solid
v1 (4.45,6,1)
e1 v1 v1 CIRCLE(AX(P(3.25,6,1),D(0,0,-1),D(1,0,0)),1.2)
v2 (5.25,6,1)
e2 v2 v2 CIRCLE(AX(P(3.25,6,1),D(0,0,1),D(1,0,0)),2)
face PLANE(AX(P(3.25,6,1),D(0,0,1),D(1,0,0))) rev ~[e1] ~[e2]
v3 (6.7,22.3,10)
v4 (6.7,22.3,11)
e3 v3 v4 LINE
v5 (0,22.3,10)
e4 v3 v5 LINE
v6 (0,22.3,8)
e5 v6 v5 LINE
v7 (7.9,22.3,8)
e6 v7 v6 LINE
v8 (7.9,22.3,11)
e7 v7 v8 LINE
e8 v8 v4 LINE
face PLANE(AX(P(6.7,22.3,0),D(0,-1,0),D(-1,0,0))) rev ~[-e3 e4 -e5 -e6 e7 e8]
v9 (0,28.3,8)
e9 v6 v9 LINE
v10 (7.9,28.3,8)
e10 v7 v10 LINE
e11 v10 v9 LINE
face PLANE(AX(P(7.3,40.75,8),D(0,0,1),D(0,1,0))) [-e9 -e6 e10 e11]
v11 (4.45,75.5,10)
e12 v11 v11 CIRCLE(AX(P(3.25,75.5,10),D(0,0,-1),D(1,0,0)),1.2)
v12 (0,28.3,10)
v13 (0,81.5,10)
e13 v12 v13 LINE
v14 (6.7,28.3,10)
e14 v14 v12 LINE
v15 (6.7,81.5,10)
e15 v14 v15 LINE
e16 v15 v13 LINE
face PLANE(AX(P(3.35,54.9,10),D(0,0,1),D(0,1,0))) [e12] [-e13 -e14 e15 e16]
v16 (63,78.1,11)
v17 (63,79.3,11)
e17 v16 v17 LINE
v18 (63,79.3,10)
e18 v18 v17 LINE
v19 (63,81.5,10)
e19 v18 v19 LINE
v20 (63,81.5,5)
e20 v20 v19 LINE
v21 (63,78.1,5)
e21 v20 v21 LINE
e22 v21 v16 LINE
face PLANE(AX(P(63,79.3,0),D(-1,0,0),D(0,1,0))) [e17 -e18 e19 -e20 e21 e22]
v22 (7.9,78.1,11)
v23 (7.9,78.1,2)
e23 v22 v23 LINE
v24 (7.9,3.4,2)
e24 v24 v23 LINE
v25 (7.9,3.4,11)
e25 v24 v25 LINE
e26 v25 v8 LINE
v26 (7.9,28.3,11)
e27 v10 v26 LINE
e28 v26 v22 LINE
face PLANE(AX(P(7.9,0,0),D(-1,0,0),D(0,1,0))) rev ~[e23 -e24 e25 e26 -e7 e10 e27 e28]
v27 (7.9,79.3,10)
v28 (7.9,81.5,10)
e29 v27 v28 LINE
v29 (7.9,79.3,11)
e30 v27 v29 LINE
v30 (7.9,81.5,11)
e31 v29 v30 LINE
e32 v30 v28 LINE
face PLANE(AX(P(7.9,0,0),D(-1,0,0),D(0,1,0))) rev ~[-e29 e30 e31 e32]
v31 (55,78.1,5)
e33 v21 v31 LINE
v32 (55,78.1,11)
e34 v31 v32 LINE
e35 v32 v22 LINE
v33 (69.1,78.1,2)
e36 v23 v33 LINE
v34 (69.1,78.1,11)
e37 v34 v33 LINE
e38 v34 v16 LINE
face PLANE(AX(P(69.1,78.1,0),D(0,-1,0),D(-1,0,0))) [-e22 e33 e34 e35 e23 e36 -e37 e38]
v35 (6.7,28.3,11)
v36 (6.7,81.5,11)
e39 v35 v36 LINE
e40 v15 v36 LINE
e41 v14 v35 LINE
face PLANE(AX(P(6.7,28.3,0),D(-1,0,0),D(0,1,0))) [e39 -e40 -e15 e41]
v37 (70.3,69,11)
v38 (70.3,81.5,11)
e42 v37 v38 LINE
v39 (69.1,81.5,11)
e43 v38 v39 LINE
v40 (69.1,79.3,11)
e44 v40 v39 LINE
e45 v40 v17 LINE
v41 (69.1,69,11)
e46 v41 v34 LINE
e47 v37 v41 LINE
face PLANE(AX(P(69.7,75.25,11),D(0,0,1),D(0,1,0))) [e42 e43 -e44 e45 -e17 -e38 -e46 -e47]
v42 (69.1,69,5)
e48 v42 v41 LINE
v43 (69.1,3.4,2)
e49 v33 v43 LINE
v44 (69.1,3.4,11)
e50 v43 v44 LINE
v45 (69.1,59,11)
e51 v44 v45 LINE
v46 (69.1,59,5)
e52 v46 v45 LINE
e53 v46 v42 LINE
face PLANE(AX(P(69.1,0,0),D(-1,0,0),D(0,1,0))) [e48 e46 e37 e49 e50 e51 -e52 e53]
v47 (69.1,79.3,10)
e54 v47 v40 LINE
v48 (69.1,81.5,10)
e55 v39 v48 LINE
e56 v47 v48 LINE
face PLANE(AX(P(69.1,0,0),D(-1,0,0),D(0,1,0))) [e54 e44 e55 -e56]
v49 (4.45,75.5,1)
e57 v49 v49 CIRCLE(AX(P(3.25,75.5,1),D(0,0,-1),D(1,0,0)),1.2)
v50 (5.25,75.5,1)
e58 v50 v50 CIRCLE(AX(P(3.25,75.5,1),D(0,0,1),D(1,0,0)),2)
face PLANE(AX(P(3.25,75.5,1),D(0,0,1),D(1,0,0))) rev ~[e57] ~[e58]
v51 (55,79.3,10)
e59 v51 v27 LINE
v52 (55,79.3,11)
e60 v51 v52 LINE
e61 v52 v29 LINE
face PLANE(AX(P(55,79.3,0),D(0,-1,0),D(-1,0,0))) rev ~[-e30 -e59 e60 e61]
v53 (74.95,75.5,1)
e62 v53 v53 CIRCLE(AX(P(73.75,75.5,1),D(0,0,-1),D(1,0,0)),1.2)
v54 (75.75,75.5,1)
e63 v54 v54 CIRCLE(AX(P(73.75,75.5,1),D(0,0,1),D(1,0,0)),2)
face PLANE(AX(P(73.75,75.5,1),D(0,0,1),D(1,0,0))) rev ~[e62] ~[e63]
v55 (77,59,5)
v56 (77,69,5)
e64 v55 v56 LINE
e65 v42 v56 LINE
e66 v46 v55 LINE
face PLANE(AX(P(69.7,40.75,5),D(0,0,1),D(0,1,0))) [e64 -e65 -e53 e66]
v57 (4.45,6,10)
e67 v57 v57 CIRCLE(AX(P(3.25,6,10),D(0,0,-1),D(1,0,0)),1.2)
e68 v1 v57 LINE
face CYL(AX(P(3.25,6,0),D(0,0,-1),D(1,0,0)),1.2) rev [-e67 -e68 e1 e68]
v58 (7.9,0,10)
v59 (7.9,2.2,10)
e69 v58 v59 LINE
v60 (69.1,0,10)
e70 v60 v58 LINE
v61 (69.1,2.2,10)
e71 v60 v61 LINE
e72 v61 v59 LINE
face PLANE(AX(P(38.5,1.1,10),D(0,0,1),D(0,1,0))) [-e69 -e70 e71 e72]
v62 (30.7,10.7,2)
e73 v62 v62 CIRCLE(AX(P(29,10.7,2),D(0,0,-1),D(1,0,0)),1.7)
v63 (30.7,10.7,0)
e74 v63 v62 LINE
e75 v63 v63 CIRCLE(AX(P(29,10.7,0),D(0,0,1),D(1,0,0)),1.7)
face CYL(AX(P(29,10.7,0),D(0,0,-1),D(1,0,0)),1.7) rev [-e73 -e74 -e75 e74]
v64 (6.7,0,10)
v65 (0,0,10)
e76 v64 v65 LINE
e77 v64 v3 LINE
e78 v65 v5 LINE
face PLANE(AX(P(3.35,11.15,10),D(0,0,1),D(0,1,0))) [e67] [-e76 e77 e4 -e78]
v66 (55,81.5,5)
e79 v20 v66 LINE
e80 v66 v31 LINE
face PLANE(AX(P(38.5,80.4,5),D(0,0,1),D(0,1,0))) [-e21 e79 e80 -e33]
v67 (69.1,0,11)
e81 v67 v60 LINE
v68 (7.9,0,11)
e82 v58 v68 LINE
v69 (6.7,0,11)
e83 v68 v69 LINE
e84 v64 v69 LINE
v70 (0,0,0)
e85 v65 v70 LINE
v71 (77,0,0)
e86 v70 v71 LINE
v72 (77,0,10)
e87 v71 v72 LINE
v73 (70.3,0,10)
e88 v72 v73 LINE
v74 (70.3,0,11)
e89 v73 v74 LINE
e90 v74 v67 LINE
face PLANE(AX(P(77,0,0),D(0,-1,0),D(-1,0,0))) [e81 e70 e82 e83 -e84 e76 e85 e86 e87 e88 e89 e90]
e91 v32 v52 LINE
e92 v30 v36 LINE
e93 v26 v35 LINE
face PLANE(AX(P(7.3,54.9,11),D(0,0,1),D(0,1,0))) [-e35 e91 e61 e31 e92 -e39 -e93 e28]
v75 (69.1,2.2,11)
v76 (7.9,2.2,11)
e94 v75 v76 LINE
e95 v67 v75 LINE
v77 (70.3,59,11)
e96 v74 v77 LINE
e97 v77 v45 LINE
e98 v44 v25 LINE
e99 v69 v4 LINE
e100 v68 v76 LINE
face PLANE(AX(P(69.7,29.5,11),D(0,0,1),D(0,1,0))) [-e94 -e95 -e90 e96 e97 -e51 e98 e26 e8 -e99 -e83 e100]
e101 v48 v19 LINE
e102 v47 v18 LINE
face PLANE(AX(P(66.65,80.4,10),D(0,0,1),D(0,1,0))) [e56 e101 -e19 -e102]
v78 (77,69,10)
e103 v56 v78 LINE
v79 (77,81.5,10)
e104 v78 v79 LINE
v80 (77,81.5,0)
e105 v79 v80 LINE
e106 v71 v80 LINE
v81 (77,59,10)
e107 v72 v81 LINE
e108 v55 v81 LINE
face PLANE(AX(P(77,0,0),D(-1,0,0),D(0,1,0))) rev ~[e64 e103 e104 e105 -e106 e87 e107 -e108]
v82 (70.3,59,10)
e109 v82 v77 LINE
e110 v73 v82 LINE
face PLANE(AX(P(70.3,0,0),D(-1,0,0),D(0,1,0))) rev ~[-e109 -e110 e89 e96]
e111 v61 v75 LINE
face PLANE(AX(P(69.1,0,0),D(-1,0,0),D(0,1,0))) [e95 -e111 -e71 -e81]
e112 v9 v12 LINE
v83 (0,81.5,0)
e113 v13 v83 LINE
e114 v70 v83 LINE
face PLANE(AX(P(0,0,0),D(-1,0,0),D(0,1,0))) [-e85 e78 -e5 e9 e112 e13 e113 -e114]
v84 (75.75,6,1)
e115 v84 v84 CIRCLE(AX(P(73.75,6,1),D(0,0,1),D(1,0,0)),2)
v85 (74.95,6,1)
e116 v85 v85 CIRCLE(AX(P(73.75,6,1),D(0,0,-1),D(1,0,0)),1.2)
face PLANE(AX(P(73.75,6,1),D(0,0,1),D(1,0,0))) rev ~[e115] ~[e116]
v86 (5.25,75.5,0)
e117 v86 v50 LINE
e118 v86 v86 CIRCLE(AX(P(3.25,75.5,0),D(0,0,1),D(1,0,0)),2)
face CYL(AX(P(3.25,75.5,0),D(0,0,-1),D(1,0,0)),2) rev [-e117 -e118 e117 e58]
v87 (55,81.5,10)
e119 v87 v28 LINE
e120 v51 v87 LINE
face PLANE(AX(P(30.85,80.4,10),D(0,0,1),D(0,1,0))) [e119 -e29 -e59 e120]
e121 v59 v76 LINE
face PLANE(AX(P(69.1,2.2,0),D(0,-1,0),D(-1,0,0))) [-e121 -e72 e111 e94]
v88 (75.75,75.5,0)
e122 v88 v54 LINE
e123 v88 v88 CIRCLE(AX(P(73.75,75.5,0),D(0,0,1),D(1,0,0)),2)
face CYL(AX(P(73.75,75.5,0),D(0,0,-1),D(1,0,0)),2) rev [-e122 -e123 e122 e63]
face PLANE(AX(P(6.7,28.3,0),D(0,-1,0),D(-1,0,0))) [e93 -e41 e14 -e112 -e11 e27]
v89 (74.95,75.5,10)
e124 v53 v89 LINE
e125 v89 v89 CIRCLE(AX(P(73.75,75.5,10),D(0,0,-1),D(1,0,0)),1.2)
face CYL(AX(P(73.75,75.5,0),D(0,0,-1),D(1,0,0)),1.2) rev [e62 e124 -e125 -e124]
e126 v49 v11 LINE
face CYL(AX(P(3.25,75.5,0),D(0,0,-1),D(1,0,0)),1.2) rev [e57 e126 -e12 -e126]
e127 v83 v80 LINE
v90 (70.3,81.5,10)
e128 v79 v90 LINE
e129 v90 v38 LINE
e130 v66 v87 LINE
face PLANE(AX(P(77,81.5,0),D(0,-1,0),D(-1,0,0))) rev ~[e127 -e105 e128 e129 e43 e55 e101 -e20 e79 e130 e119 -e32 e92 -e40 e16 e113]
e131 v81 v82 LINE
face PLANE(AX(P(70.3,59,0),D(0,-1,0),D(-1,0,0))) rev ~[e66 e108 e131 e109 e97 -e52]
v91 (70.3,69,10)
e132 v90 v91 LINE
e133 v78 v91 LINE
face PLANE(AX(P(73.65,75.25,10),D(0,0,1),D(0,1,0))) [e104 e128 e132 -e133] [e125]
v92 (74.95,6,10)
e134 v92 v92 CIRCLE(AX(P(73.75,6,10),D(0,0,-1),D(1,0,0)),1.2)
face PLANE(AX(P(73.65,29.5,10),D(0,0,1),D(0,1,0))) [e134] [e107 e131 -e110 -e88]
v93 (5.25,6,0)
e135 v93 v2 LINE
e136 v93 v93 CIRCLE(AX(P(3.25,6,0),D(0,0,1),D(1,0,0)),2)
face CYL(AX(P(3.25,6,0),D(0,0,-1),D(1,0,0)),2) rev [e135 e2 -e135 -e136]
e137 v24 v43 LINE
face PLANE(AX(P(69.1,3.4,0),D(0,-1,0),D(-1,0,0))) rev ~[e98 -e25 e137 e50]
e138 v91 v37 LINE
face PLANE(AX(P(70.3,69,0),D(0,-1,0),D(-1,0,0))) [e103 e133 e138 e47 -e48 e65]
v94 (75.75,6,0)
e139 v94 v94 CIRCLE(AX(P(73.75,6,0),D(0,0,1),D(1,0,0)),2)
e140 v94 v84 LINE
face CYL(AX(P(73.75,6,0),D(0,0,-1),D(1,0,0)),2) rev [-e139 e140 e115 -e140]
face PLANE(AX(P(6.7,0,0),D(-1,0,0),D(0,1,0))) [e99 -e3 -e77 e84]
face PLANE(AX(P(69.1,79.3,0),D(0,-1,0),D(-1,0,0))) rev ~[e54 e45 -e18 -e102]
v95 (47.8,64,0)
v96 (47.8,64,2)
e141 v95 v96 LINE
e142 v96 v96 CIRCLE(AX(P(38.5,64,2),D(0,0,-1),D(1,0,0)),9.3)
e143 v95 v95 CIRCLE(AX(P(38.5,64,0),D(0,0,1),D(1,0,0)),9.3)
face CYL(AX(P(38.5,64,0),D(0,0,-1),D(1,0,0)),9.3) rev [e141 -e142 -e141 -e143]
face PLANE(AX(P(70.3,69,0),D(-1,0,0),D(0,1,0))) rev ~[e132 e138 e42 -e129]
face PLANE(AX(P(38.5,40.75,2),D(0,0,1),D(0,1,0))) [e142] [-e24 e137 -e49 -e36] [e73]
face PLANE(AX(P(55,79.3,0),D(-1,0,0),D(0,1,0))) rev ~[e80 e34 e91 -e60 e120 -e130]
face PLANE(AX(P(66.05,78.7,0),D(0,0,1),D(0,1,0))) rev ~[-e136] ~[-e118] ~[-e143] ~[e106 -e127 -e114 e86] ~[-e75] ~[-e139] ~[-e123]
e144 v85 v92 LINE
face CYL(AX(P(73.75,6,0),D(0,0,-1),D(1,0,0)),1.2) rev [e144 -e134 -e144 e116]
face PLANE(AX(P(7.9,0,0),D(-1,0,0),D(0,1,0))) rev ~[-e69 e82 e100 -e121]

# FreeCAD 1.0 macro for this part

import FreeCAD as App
import Part
import Sketcher
Q = App.Units.Quantity


def add_polygon(sketch, points):
    """Adds a closed chain of lines whose ends are joined by coincident constraints."""
    first, n = sketch.GeometryCount, len(points)
    for a, b in zip(points, points[1:] + points[:1]):
        sketch.addGeometry(Part.LineSegment(App.Vector(*a, 0), App.Vector(*b, 0)), False)
    for i in range(n):
        sketch.addConstraint(Sketcher.Constraint("Coincident", first + i, 2, first + (i + 1) % n, 1))

doc = App.newDocument("Part")
body = doc.addObject("PartDesign::Body", "Body")

# Sketch on XY plane
sketch1 = doc.addObject("Sketcher::SketchObject", "Sketch")
body.addObject(sketch1)
sketch1.AttachmentSupport = (doc.XY_Plane, [""])
sketch1.MapMode = "FlatFace"
add_polygon(sketch1, [(0, 0), (77, 0), (77, 81.5), (0, 81.5)])  # lines 0-3
sketch1.addConstraint([
    Sketcher.Constraint("Horizontal", 0),
    Sketcher.Constraint("Vertical", 1),
    Sketcher.Constraint("Horizontal", 2),
    Sketcher.Constraint("Vertical", 3),
    Sketcher.Constraint("Coincident", 3, 2, -1, 1),
    Sketcher.Constraint("DistanceX", 0, 1, 0, 2, Q("77 mm")),
    Sketcher.Constraint("DistanceY", 1, 1, 1, 2, Q("81.5 mm")),
])
pad1 = doc.addObject("PartDesign::Pad", "Pad")
body.addObject(pad1)
pad1.Profile = sketch1
pad1.Length = 2

# Sketch on XY plane
sketch2 = doc.addObject("Sketcher::SketchObject", "Sketch001")
body.addObject(sketch2)
sketch2.AttachmentSupport = (doc.XY_Plane, [""])
sketch2.MapMode = "FlatFace"
add_polygon(sketch2, [(0, 0), (6.7, 0), (6.7, 81.5), (0, 81.5)])  # lines 0-3
sketch2.addConstraint([
    Sketcher.Constraint("Horizontal", 0),
    Sketcher.Constraint("Vertical", 1),
    Sketcher.Constraint("Horizontal", 2),
    Sketcher.Constraint("Vertical", 3),
    Sketcher.Constraint("Coincident", 3, 2, -1, 1),
    Sketcher.Constraint("DistanceX", 0, 1, 0, 2, Q("6.7 mm")),
    Sketcher.Constraint("DistanceY", 1, 1, 1, 2, Q("81.5 mm")),
])
pad2 = doc.addObject("PartDesign::Pad", "Pad001")
body.addObject(pad2)
pad2.Profile = sketch2
pad2.Length = 8

# Sketch on XY plane
sketch3 = doc.addObject("Sketcher::SketchObject", "Sketch002")
body.addObject(sketch3)
sketch3.AttachmentSupport = (doc.XY_Plane, [""])
sketch3.MapMode = "FlatFace"
add_polygon(sketch3, [(0, 0), (6.7, 0), (6.7, 22.3), (0, 22.3)])  # lines 0-3
sketch3.addConstraint([
    Sketcher.Constraint("Horizontal", 0),
    Sketcher.Constraint("Vertical", 1),
    Sketcher.Constraint("Horizontal", 2),
    Sketcher.Constraint("Vertical", 3),
    Sketcher.Constraint("Coincident", 3, 2, -1, 1),
    Sketcher.Constraint("DistanceX", 0, 1, 0, 2, Q("6.7 mm")),
    Sketcher.Constraint("DistanceY", 1, 1, 1, 2, Q("22.3 mm")),
])
pad3 = doc.addObject("PartDesign::Pad", "Pad002")
body.addObject(pad3)
pad3.Profile = sketch3
pad3.Length = 10

# Sketch on XY plane
sketch4 = doc.addObject("Sketcher::SketchObject", "Sketch003")
body.addObject(sketch4)
sketch4.AttachmentSupport = (doc.XY_Plane, [""])
sketch4.MapMode = "FlatFace"
add_polygon(sketch4, [(0, 28.3), (6.7, 28.3), (6.7, 81.5), (0, 81.5)])  # lines 0-3
sketch4.addConstraint([
    Sketcher.Constraint("Horizontal", 0),
    Sketcher.Constraint("Vertical", 1),
    Sketcher.Constraint("Horizontal", 2),
    Sketcher.Constraint("Vertical", 3),
    Sketcher.Constraint("PointOnObject", 2, 2, -2),
    Sketcher.Constraint("DistanceX", 0, 1, 0, 2, Q("6.7 mm")),
    Sketcher.Constraint("DistanceY", 1, 1, 1, 2, Q("53.2 mm")),
    Sketcher.Constraint("DistanceY", -1, 1, 0, 2, Q("28.3 mm")),
])
pad4 = doc.addObject("PartDesign::Pad", "Pad003")
body.addObject(pad4)
pad4.Profile = sketch4
pad4.Length = 10

# Sketch on XY plane
sketch5 = doc.addObject("Sketcher::SketchObject", "Sketch004")
body.addObject(sketch5)
sketch5.AttachmentSupport = (doc.XY_Plane, [""])
sketch5.MapMode = "FlatFace"
add_polygon(sketch5, [(6.7, 0), (7.9, 0), (7.9, 81.5), (6.7, 81.5)])  # lines 0-3
sketch5.addConstraint([
    Sketcher.Constraint("Horizontal", 0),
    Sketcher.Constraint("Vertical", 1),
    Sketcher.Constraint("Horizontal", 2),
    Sketcher.Constraint("Vertical", 3),
    Sketcher.Constraint("PointOnObject", 0, 2, -1),
    Sketcher.Constraint("DistanceX", 0, 1, 0, 2, Q("1.2 mm")),
    Sketcher.Constraint("DistanceY", 1, 1, 1, 2, Q("81.5 mm")),
    Sketcher.Constraint("DistanceX", -1, 1, 0, 2, Q("7.9 mm")),
])
pad5 = doc.addObject("PartDesign::Pad", "Pad004")
body.addObject(pad5)
pad5.Profile = sketch5
pad5.Length = 8

# Sketch on XY plane
sketch6 = doc.addObject("Sketcher::SketchObject", "Sketch005")
body.addObject(sketch6)
sketch6.AttachmentSupport = (doc.XY_Plane, [""])
sketch6.MapMode = "FlatFace"
add_polygon(sketch6, [(6.7, 0), (7.9, 0), (7.9, 22.3), (6.7, 22.3)])  # lines 0-3
sketch6.addConstraint([
    Sketcher.Constraint("Horizontal", 0),
    Sketcher.Constraint("Vertical", 1),
    Sketcher.Constraint("Horizontal", 2),
    Sketcher.Constraint("Vertical", 3),
    Sketcher.Constraint("PointOnObject", 0, 2, -1),
    Sketcher.Constraint("DistanceX", 0, 1, 0, 2, Q("1.2 mm")),
    Sketcher.Constraint("DistanceY", 1, 1, 1, 2, Q("22.3 mm")),
    Sketcher.Constraint("DistanceX", -1, 1, 0, 2, Q("7.9 mm")),
])
pad6 = doc.addObject("PartDesign::Pad", "Pad005")
body.addObject(pad6)
pad6.Profile = sketch6
pad6.Length = 11

# Sketch on XY plane
sketch7 = doc.addObject("Sketcher::SketchObject", "Sketch006")
body.addObject(sketch7)
sketch7.AttachmentSupport = (doc.XY_Plane, [""])
sketch7.MapMode = "FlatFace"
add_polygon(sketch7, [(6.7, 28.3), (7.9, 28.3), (7.9, 81.5), (6.7, 81.5)])  # lines 0-3
sketch7.addConstraint([
    Sketcher.Constraint("Horizontal", 0),
    Sketcher.Constraint("Vertical", 1),
    Sketcher.Constraint("Horizontal", 2),
    Sketcher.Constraint("Vertical", 3),
    Sketcher.Constraint("DistanceX", 0, 1, 0, 2, Q("1.2 mm")),
    Sketcher.Constraint("DistanceY", 1, 1, 1, 2, Q("53.2 mm")),
    Sketcher.Constraint("DistanceX", -1, 1, 0, 2, Q("7.9 mm")),
    Sketcher.Constraint("DistanceY", -1, 1, 0, 2, Q("28.3 mm")),
])
pad7 = doc.addObject("PartDesign::Pad", "Pad006")
body.addObject(pad7)
pad7.Profile = sketch7
pad7.Length = 11

# Sketch on XY plane
sketch8 = doc.addObject("Sketcher::SketchObject", "Sketch007")
body.addObject(sketch8)
sketch8.AttachmentSupport = (doc.XY_Plane, [""])
sketch8.MapMode = "FlatFace"
add_polygon(sketch8, [(70.3, 0), (77, 0), (77, 81.5), (70.3, 81.5)])  # lines 0-3
sketch8.addConstraint([
    Sketcher.Constraint("Horizontal", 0),
    Sketcher.Constraint("Vertical", 1),
    Sketcher.Constraint("Horizontal", 2),
    Sketcher.Constraint("Vertical", 3),
    Sketcher.Constraint("PointOnObject", 0, 2, -1),
    Sketcher.Constraint("DistanceX", 0, 1, 0, 2, Q("6.7 mm")),
    Sketcher.Constraint("DistanceY", 1, 1, 1, 2, Q("81.5 mm")),
    Sketcher.Constraint("DistanceX", -1, 1, 0, 2, Q("77 mm")),
])
pad8 = doc.addObject("PartDesign::Pad", "Pad007")
body.addObject(pad8)
pad8.Profile = sketch8
pad8.Length = 5

# Sketch on XY plane
sketch9 = doc.addObject("Sketcher::SketchObject", "Sketch008")
body.addObject(sketch9)
sketch9.AttachmentSupport = (doc.XY_Plane, [""])
sketch9.MapMode = "FlatFace"
add_polygon(sketch9, [(70.3, 0), (77, 0), (77, 59), (70.3, 59)])  # lines 0-3
sketch9.addConstraint([
    Sketcher.Constraint("Horizontal", 0),
    Sketcher.Constraint("Vertical", 1),
    Sketcher.Constraint("Horizontal", 2),
    Sketcher.Constraint("Vertical", 3),
    Sketcher.Constraint("PointOnObject", 0, 2, -1),
    Sketcher.Constraint("DistanceY", 1, 1, 1, 2, Q("59 mm")),
    Sketcher.Constraint("DistanceX", 0, 1, 0, 2, Q("6.7 mm")),
    Sketcher.Constraint("DistanceX", -1, 1, 0, 2, Q("77 mm")),
])
pad9 = doc.addObject("PartDesign::Pad", "Pad008")
body.addObject(pad9)
pad9.Profile = sketch9
pad9.Length = 10

# Sketch on XY plane
sketch10 = doc.addObject("Sketcher::SketchObject", "Sketch009")
body.addObject(sketch10)
sketch10.AttachmentSupport = (doc.XY_Plane, [""])
sketch10.MapMode = "FlatFace"
add_polygon(sketch10, [(70.3, 69), (77, 69), (77, 81.5), (70.3, 81.5)])  # lines 0-3
sketch10.addConstraint([
    Sketcher.Constraint("Horizontal", 0),
    Sketcher.Constraint("Vertical", 1),
    Sketcher.Constraint("Horizontal", 2),
    Sketcher.Constraint("Vertical", 3),
    Sketcher.Constraint("DistanceX", 0, 1, 0, 2, Q("6.7 mm")),
    Sketcher.Constraint("DistanceY", 1, 1, 1, 2, Q("12.5 mm")),
    Sketcher.Constraint("DistanceX", -1, 1, 0, 2, Q("77 mm")),
    Sketcher.Constraint("DistanceY", -1, 1, 0, 2, Q("69 mm")),
])
pad10 = doc.addObject("PartDesign::Pad", "Pad009")
body.addObject(pad10)
pad10.Profile = sketch10
pad10.Length = 10

# Sketch on XY plane
sketch11 = doc.addObject("Sketcher::SketchObject", "Sketch010")
body.addObject(sketch11)
sketch11.AttachmentSupport = (doc.XY_Plane, [""])
sketch11.MapMode = "FlatFace"
add_polygon(sketch11, [(69.1, 0), (70.3, 0), (70.3, 81.5), (69.1, 81.5)])  # lines 0-3
sketch11.addConstraint([
    Sketcher.Constraint("Horizontal", 0),
    Sketcher.Constraint("Vertical", 1),
    Sketcher.Constraint("Horizontal", 2),
    Sketcher.Constraint("Vertical", 3),
    Sketcher.Constraint("PointOnObject", 0, 2, -1),
    Sketcher.Constraint("DistanceX", 0, 1, 0, 2, Q("1.2 mm")),
    Sketcher.Constraint("DistanceY", 1, 1, 1, 2, Q("81.5 mm")),
    Sketcher.Constraint("DistanceX", -1, 1, 0, 2, Q("70.3 mm")),
])
pad11 = doc.addObject("PartDesign::Pad", "Pad010")
body.addObject(pad11)
pad11.Profile = sketch11
pad11.Length = 5

# Sketch on XY plane
sketch12 = doc.addObject("Sketcher::SketchObject", "Sketch011")
body.addObject(sketch12)
sketch12.AttachmentSupport = (doc.XY_Plane, [""])
sketch12.MapMode = "FlatFace"
add_polygon(sketch12, [(69.1, 0), (70.3, 0), (70.3, 59), (69.1, 59)])  # lines 0-3
sketch12.addConstraint([
    Sketcher.Constraint("Horizontal", 0),
    Sketcher.Constraint("Vertical", 1),
    Sketcher.Constraint("Horizontal", 2),
    Sketcher.Constraint("Vertical", 3),
    Sketcher.Constraint("PointOnObject", 0, 2, -1),
    Sketcher.Constraint("DistanceY", 1, 1, 1, 2, Q("59 mm")),
    Sketcher.Constraint("DistanceX", 0, 1, 0, 2, Q("1.2 mm")),
    Sketcher.Constraint("DistanceX", -1, 1, 0, 2, Q("70.3 mm")),
])
pad12 = doc.addObject("PartDesign::Pad", "Pad011")
body.addObject(pad12)
pad12.Profile = sketch12
pad12.Length = 11

# Sketch on XY plane
sketch13 = doc.addObject("Sketcher::SketchObject", "Sketch012")
body.addObject(sketch13)
sketch13.AttachmentSupport = (doc.XY_Plane, [""])
sketch13.MapMode = "FlatFace"
add_polygon(sketch13, [(69.1, 69), (70.3, 69), (70.3, 81.5), (69.1, 81.5)])  # lines 0-3
sketch13.addConstraint([
    Sketcher.Constraint("Horizontal", 0),
    Sketcher.Constraint("Vertical", 1),
    Sketcher.Constraint("Horizontal", 2),
    Sketcher.Constraint("Vertical", 3),
    Sketcher.Constraint("DistanceX", 0, 1, 0, 2, Q("1.2 mm")),
    Sketcher.Constraint("DistanceY", 1, 1, 1, 2, Q("12.5 mm")),
    Sketcher.Constraint("DistanceY", -1, 1, 0, 2, Q("69 mm")),
    Sketcher.Constraint("DistanceX", -1, 1, 0, 2, Q("70.3 mm")),
])
pad13 = doc.addObject("PartDesign::Pad", "Pad012")
body.addObject(pad13)
pad13.Profile = sketch13
pad13.Length = 11

# Sketch on XY plane
sketch14 = doc.addObject("Sketcher::SketchObject", "Sketch013")
body.addObject(sketch14)
sketch14.AttachmentSupport = (doc.XY_Plane, [""])
sketch14.MapMode = "FlatFace"
add_polygon(sketch14, [(6.7, 0), (70.3, 0), (70.3, 2.2), (6.7, 2.2)])  # lines 0-3
sketch14.addConstraint([
    Sketcher.Constraint("Horizontal", 0),
    Sketcher.Constraint("Vertical", 1),
    Sketcher.Constraint("Horizontal", 2),
    Sketcher.Constraint("Vertical", 3),
    Sketcher.Constraint("PointOnObject", 0, 2, -1),
    Sketcher.Constraint("DistanceX", 0, 1, 0, 2, Q("63.6 mm")),
    Sketcher.Constraint("DistanceY", 1, 1, 1, 2, Q("2.2 mm")),
    Sketcher.Constraint("DistanceX", -1, 1, 0, 2, Q("70.3 mm")),
])
pad14 = doc.addObject("PartDesign::Pad", "Pad013")
body.addObject(pad14)
pad14.Profile = sketch14
pad14.Length = 10

# Sketch on XY plane
sketch15 = doc.addObject("Sketcher::SketchObject", "Sketch014")
body.addObject(sketch15)
sketch15.AttachmentSupport = (doc.XY_Plane, [""])
sketch15.MapMode = "FlatFace"
add_polygon(sketch15, [(7.9, 2.2), (69.1, 2.2), (69.1, 3.4), (7.9, 3.4)])  # lines 0-3
sketch15.addConstraint([
    Sketcher.Constraint("Horizontal", 0),
    Sketcher.Constraint("Vertical", 1),
    Sketcher.Constraint("Horizontal", 2),
    Sketcher.Constraint("Vertical", 3),
    Sketcher.Constraint("DistanceX", 0, 1, 0, 2, Q("61.2 mm")),
    Sketcher.Constraint("DistanceY", 1, 1, 1, 2, Q("1.2 mm")),
    Sketcher.Constraint("DistanceX", -1, 1, 0, 2, Q("69.1 mm")),
    Sketcher.Constraint("DistanceY", -1, 1, 0, 2, Q("2.2 mm")),
])
pad15 = doc.addObject("PartDesign::Pad", "Pad014")
body.addObject(pad15)
pad15.Profile = sketch15
pad15.Length = 11

# Sketch on XY plane
sketch16 = doc.addObject("Sketcher::SketchObject", "Sketch015")
body.addObject(sketch16)
sketch16.AttachmentSupport = (doc.XY_Plane, [""])
sketch16.MapMode = "FlatFace"
add_polygon(sketch16, [(6.7, 79.3), (70.3, 79.3), (70.3, 81.5), (6.7, 81.5)])  # lines 0-3
sketch16.addConstraint([
    Sketcher.Constraint("Horizontal", 0),
    Sketcher.Constraint("Vertical", 1),
    Sketcher.Constraint("Horizontal", 2),
    Sketcher.Constraint("Vertical", 3),
    Sketcher.Constraint("DistanceX", 0, 1, 0, 2, Q("63.6 mm")),
    Sketcher.Constraint("DistanceY", 1, 1, 1, 2, Q("2.2 mm")),
    Sketcher.Constraint("DistanceX", -1, 1, 0, 2, Q("70.3 mm")),
    Sketcher.Constraint("DistanceY", -1, 1, 0, 2, Q("79.3 mm")),
])
pad16 = doc.addObject("PartDesign::Pad", "Pad015")
body.addObject(pad16)
pad16.Profile = sketch16
pad16.Length = 5

# Sketch on XY plane
sketch17 = doc.addObject("Sketcher::SketchObject", "Sketch016")
body.addObject(sketch17)
sketch17.AttachmentSupport = (doc.XY_Plane, [""])
sketch17.MapMode = "FlatFace"
add_polygon(sketch17, [(6.7, 79.3), (55, 79.3), (55, 81.5), (6.7, 81.5)])  # lines 0-3
sketch17.addConstraint([
    Sketcher.Constraint("Horizontal", 0),
    Sketcher.Constraint("Vertical", 1),
    Sketcher.Constraint("Horizontal", 2),
    Sketcher.Constraint("Vertical", 3),
    Sketcher.Constraint("DistanceX", 0, 1, 0, 2, Q("48.3 mm")),
    Sketcher.Constraint("DistanceY", 1, 1, 1, 2, Q("2.2 mm")),
    Sketcher.Constraint("DistanceX", -1, 1, 0, 2, Q("55 mm")),
    Sketcher.Constraint("DistanceY", -1, 1, 0, 2, Q("79.3 mm")),
])
pad17 = doc.addObject("PartDesign::Pad", "Pad016")
body.addObject(pad17)
pad17.Profile = sketch17
pad17.Length = 10

# Sketch on XY plane
sketch18 = doc.addObject("Sketcher::SketchObject", "Sketch017")
body.addObject(sketch18)
sketch18.AttachmentSupport = (doc.XY_Plane, [""])
sketch18.MapMode = "FlatFace"
add_polygon(sketch18, [(63, 79.3), (70.3, 79.3), (70.3, 81.5), (63, 81.5)])  # lines 0-3
sketch18.addConstraint([
    Sketcher.Constraint("Horizontal", 0),
    Sketcher.Constraint("Vertical", 1),
    Sketcher.Constraint("Horizontal", 2),
    Sketcher.Constraint("Vertical", 3),
    Sketcher.Constraint("DistanceX", 0, 1, 0, 2, Q("7.3 mm")),
    Sketcher.Constraint("DistanceY", 1, 1, 1, 2, Q("2.2 mm")),
    Sketcher.Constraint("DistanceX", -1, 1, 2, 2, Q("63 mm")),
    Sketcher.Constraint("DistanceY", -1, 1, 0, 2, Q("79.3 mm")),
])
pad18 = doc.addObject("PartDesign::Pad", "Pad017")
body.addObject(pad18)
pad18.Profile = sketch18
pad18.Length = 10

# Sketch on XY plane
sketch19 = doc.addObject("Sketcher::SketchObject", "Sketch018")
body.addObject(sketch19)
sketch19.AttachmentSupport = (doc.XY_Plane, [""])
sketch19.MapMode = "FlatFace"
add_polygon(sketch19, [(7.9, 78.1), (69.1, 78.1), (69.1, 79.3), (7.9, 79.3)])  # lines 0-3
sketch19.addConstraint([
    Sketcher.Constraint("Horizontal", 0),
    Sketcher.Constraint("Vertical", 1),
    Sketcher.Constraint("Horizontal", 2),
    Sketcher.Constraint("Vertical", 3),
    Sketcher.Constraint("DistanceX", 0, 1, 0, 2, Q("61.2 mm")),
    Sketcher.Constraint("DistanceY", 1, 1, 1, 2, Q("1.2 mm")),
    Sketcher.Constraint("DistanceX", -1, 1, 0, 2, Q("69.1 mm")),
    Sketcher.Constraint("DistanceY", -1, 1, 0, 2, Q("78.1 mm")),
])
pad19 = doc.addObject("PartDesign::Pad", "Pad018")
body.addObject(pad19)
pad19.Profile = sketch19
pad19.Length = 5

# Sketch on XY plane
sketch20 = doc.addObject("Sketcher::SketchObject", "Sketch019")
body.addObject(sketch20)
sketch20.AttachmentSupport = (doc.XY_Plane, [""])
sketch20.MapMode = "FlatFace"
add_polygon(sketch20, [(7.9, 78.1), (55, 78.1), (55, 79.3), (7.9, 79.3)])  # lines 0-3
sketch20.addConstraint([
    Sketcher.Constraint("Horizontal", 0),
    Sketcher.Constraint("Vertical", 1),
    Sketcher.Constraint("Horizontal", 2),
    Sketcher.Constraint("Vertical", 3),
    Sketcher.Constraint("DistanceX", 0, 1, 0, 2, Q("47.1 mm")),
    Sketcher.Constraint("DistanceY", 1, 1, 1, 2, Q("1.2 mm")),
    Sketcher.Constraint("DistanceX", -1, 1, 0, 2, Q("55 mm")),
    Sketcher.Constraint("DistanceY", -1, 1, 0, 2, Q("78.1 mm")),
])
pad20 = doc.addObject("PartDesign::Pad", "Pad019")
body.addObject(pad20)
pad20.Profile = sketch20
pad20.Length = 11

# Sketch on XY plane
sketch21 = doc.addObject("Sketcher::SketchObject", "Sketch020")
body.addObject(sketch21)
sketch21.AttachmentSupport = (doc.XY_Plane, [""])
sketch21.MapMode = "FlatFace"
add_polygon(sketch21, [(63, 78.1), (69.1, 78.1), (69.1, 79.3), (63, 79.3)])  # lines 0-3
sketch21.addConstraint([
    Sketcher.Constraint("Horizontal", 0),
    Sketcher.Constraint("Vertical", 1),
    Sketcher.Constraint("Horizontal", 2),
    Sketcher.Constraint("Vertical", 3),
    Sketcher.Constraint("DistanceX", 0, 1, 0, 2, Q("6.1 mm")),
    Sketcher.Constraint("DistanceY", 1, 1, 1, 2, Q("1.2 mm")),
    Sketcher.Constraint("DistanceX", -1, 1, 2, 2, Q("63 mm")),
    Sketcher.Constraint("DistanceY", -1, 1, 0, 2, Q("78.1 mm")),
])
pad21 = doc.addObject("PartDesign::Pad", "Pad020")
body.addObject(pad21)
pad21.Profile = sketch21
pad21.Length = 11

# Sketch on XY plane
sketch22 = doc.addObject("Sketcher::SketchObject", "Sketch021")
body.addObject(sketch22)
sketch22.AttachmentSupport = (doc.XY_Plane, [""])
sketch22.MapMode = "FlatFace"
sketch22.addGeometry(Part.Circle(App.Vector(29, 10.7, 0), App.Vector(0, 0, 1), 1.7), False)
sketch22.addConstraint([
    Sketcher.Constraint("Diameter", 0, Q("3.4 mm")),
    Sketcher.Constraint("DistanceX", -1, 1, 0, 3, Q("29 mm")),
    Sketcher.Constraint("DistanceY", -1, 1, 0, 3, Q("10.7 mm")),
])
pocket1 = doc.addObject("PartDesign::Pocket", "Pocket")
body.addObject(pocket1)
pocket1.Profile = sketch22
pocket1.Length = 17
pocket1.Reversed = True

# Sketch on XY plane
sketch23 = doc.addObject("Sketcher::SketchObject", "Sketch022")
body.addObject(sketch23)
sketch23.AttachmentSupport = (doc.XY_Plane, [""])
sketch23.MapMode = "FlatFace"
sketch23.addGeometry(Part.Circle(App.Vector(38.5, 64, 0), App.Vector(0, 0, 1), 9.3), False)
sketch23.addConstraint([
    Sketcher.Constraint("Diameter", 0, Q("18.6 mm")),
    Sketcher.Constraint("DistanceY", -1, 1, 0, 3, Q("64 mm")),
    Sketcher.Constraint("DistanceX", -1, 1, 0, 3, Q("38.5 mm")),
])
pocket2 = doc.addObject("PartDesign::Pocket", "Pocket001")
body.addObject(pocket2)
pocket2.Profile = sketch23
pocket2.Length = 17
pocket2.Reversed = True

# Sketch on XY plane
sketch24 = doc.addObject("Sketcher::SketchObject", "Sketch023")
body.addObject(sketch24)
sketch24.AttachmentSupport = (doc.XY_Plane, [""])
sketch24.MapMode = "FlatFace"
sketch24.addGeometry(Part.Circle(App.Vector(3.25, 6, 0), App.Vector(0, 0, 1), 1.2), False)
sketch24.addConstraint([
    Sketcher.Constraint("Diameter", 0, Q("2.4 mm")),
    Sketcher.Constraint("DistanceY", -1, 1, 0, 3, Q("6 mm")),
    Sketcher.Constraint("DistanceX", -1, 1, 0, 3, Q("3.25 mm")),
])
pocket3 = doc.addObject("PartDesign::Pocket", "Pocket002")
body.addObject(pocket3)
pocket3.Profile = sketch24
pocket3.Length = 17
pocket3.Reversed = True

# Sketch on XY plane
sketch25 = doc.addObject("Sketcher::SketchObject", "Sketch024")
body.addObject(sketch25)
sketch25.AttachmentSupport = (doc.XY_Plane, [""])
sketch25.MapMode = "FlatFace"
sketch25.addGeometry(Part.Circle(App.Vector(3.25, 6, 0), App.Vector(0, 0, 1), 2), False)
sketch25.addConstraint([
    Sketcher.Constraint("Diameter", 0, Q("4 mm")),
    Sketcher.Constraint("DistanceY", -1, 1, 0, 3, Q("6 mm")),
    Sketcher.Constraint("DistanceX", -1, 1, 0, 3, Q("3.25 mm")),
])
pocket4 = doc.addObject("PartDesign::Pocket", "Pocket003")
body.addObject(pocket4)
pocket4.Profile = sketch25
pocket4.Length = 1
pocket4.Reversed = True

# Sketch on XY plane
sketch26 = doc.addObject("Sketcher::SketchObject", "Sketch025")
body.addObject(sketch26)
sketch26.AttachmentSupport = (doc.XY_Plane, [""])
sketch26.MapMode = "FlatFace"
sketch26.addGeometry(Part.Circle(App.Vector(3.25, 75.5, 0), App.Vector(0, 0, 1), 1.2), False)
sketch26.addConstraint([
    Sketcher.Constraint("Diameter", 0, Q("2.4 mm")),
    Sketcher.Constraint("DistanceY", -1, 1, 0, 3, Q("75.5 mm")),
    Sketcher.Constraint("DistanceX", -1, 1, 0, 3, Q("3.25 mm")),
])
pocket5 = doc.addObject("PartDesign::Pocket", "Pocket004")
body.addObject(pocket5)
pocket5.Profile = sketch26
pocket5.Length = 17
pocket5.Reversed = True

# Sketch on XY plane
sketch27 = doc.addObject("Sketcher::SketchObject", "Sketch026")
body.addObject(sketch27)
sketch27.AttachmentSupport = (doc.XY_Plane, [""])
sketch27.MapMode = "FlatFace"
sketch27.addGeometry(Part.Circle(App.Vector(3.25, 75.5, 0), App.Vector(0, 0, 1), 2), False)
sketch27.addConstraint([
    Sketcher.Constraint("Diameter", 0, Q("4 mm")),
    Sketcher.Constraint("DistanceY", -1, 1, 0, 3, Q("75.5 mm")),
    Sketcher.Constraint("DistanceX", -1, 1, 0, 3, Q("3.25 mm")),
])
pocket6 = doc.addObject("PartDesign::Pocket", "Pocket005")
body.addObject(pocket6)
pocket6.Profile = sketch27
pocket6.Length = 1
pocket6.Reversed = True

# Sketch on XY plane
sketch28 = doc.addObject("Sketcher::SketchObject", "Sketch027")
body.addObject(sketch28)
sketch28.AttachmentSupport = (doc.XY_Plane, [""])
sketch28.MapMode = "FlatFace"
sketch28.addGeometry(Part.Circle(App.Vector(73.75, 6, 0), App.Vector(0, 0, 1), 1.2), False)
sketch28.addConstraint([
    Sketcher.Constraint("Diameter", 0, Q("2.4 mm")),
    Sketcher.Constraint("DistanceY", -1, 1, 0, 3, Q("6 mm")),
    Sketcher.Constraint("DistanceX", -1, 1, 0, 3, Q("73.75 mm")),
])
pocket7 = doc.addObject("PartDesign::Pocket", "Pocket006")
body.addObject(pocket7)
pocket7.Profile = sketch28
pocket7.Length = 17
pocket7.Reversed = True

# Sketch on XY plane
sketch29 = doc.addObject("Sketcher::SketchObject", "Sketch028")
body.addObject(sketch29)
sketch29.AttachmentSupport = (doc.XY_Plane, [""])
sketch29.MapMode = "FlatFace"
sketch29.addGeometry(Part.Circle(App.Vector(73.75, 6, 0), App.Vector(0, 0, 1), 2), False)
sketch29.addConstraint([
    Sketcher.Constraint("Diameter", 0, Q("4 mm")),
    Sketcher.Constraint("DistanceY", -1, 1, 0, 3, Q("6 mm")),
    Sketcher.Constraint("DistanceX", -1, 1, 0, 3, Q("73.75 mm")),
])
pocket8 = doc.addObject("PartDesign::Pocket", "Pocket007")
body.addObject(pocket8)
pocket8.Profile = sketch29
pocket8.Length = 1
pocket8.Reversed = True

# Sketch on XY plane
sketch30 = doc.addObject("Sketcher::SketchObject", "Sketch029")
body.addObject(sketch30)
sketch30.AttachmentSupport = (doc.XY_Plane, [""])
sketch30.MapMode = "FlatFace"
sketch30.addGeometry(Part.Circle(App.Vector(73.75, 75.5, 0), App.Vector(0, 0, 1), 1.2), False)
sketch30.addConstraint([
    Sketcher.Constraint("Diameter", 0, Q("2.4 mm")),
    Sketcher.Constraint("DistanceY", -1, 1, 0, 3, Q("75.5 mm")),
    Sketcher.Constraint("DistanceX", -1, 1, 0, 3, Q("73.75 mm")),
])
pocket9 = doc.addObject("PartDesign::Pocket", "Pocket008")
body.addObject(pocket9)
pocket9.Profile = sketch30
pocket9.Length = 17
pocket9.Reversed = True

# Sketch on XY plane
sketch31 = doc.addObject("Sketcher::SketchObject", "Sketch030")
body.addObject(sketch31)
sketch31.AttachmentSupport = (doc.XY_Plane, [""])
sketch31.MapMode = "FlatFace"
sketch31.addGeometry(Part.Circle(App.Vector(73.75, 75.5, 0), App.Vector(0, 0, 1), 2), False)
sketch31.addConstraint([
    Sketcher.Constraint("Diameter", 0, Q("4 mm")),
    Sketcher.Constraint("DistanceY", -1, 1, 0, 3, Q("75.5 mm")),
    Sketcher.Constraint("DistanceX", -1, 1, 0, 3, Q("73.75 mm")),
])
pocket10 = doc.addObject("PartDesign::Pocket", "Pocket009")
body.addObject(pocket10)
pocket10.Profile = sketch31
pocket10.Length = 1
pocket10.Reversed = True

doc.recompute()
